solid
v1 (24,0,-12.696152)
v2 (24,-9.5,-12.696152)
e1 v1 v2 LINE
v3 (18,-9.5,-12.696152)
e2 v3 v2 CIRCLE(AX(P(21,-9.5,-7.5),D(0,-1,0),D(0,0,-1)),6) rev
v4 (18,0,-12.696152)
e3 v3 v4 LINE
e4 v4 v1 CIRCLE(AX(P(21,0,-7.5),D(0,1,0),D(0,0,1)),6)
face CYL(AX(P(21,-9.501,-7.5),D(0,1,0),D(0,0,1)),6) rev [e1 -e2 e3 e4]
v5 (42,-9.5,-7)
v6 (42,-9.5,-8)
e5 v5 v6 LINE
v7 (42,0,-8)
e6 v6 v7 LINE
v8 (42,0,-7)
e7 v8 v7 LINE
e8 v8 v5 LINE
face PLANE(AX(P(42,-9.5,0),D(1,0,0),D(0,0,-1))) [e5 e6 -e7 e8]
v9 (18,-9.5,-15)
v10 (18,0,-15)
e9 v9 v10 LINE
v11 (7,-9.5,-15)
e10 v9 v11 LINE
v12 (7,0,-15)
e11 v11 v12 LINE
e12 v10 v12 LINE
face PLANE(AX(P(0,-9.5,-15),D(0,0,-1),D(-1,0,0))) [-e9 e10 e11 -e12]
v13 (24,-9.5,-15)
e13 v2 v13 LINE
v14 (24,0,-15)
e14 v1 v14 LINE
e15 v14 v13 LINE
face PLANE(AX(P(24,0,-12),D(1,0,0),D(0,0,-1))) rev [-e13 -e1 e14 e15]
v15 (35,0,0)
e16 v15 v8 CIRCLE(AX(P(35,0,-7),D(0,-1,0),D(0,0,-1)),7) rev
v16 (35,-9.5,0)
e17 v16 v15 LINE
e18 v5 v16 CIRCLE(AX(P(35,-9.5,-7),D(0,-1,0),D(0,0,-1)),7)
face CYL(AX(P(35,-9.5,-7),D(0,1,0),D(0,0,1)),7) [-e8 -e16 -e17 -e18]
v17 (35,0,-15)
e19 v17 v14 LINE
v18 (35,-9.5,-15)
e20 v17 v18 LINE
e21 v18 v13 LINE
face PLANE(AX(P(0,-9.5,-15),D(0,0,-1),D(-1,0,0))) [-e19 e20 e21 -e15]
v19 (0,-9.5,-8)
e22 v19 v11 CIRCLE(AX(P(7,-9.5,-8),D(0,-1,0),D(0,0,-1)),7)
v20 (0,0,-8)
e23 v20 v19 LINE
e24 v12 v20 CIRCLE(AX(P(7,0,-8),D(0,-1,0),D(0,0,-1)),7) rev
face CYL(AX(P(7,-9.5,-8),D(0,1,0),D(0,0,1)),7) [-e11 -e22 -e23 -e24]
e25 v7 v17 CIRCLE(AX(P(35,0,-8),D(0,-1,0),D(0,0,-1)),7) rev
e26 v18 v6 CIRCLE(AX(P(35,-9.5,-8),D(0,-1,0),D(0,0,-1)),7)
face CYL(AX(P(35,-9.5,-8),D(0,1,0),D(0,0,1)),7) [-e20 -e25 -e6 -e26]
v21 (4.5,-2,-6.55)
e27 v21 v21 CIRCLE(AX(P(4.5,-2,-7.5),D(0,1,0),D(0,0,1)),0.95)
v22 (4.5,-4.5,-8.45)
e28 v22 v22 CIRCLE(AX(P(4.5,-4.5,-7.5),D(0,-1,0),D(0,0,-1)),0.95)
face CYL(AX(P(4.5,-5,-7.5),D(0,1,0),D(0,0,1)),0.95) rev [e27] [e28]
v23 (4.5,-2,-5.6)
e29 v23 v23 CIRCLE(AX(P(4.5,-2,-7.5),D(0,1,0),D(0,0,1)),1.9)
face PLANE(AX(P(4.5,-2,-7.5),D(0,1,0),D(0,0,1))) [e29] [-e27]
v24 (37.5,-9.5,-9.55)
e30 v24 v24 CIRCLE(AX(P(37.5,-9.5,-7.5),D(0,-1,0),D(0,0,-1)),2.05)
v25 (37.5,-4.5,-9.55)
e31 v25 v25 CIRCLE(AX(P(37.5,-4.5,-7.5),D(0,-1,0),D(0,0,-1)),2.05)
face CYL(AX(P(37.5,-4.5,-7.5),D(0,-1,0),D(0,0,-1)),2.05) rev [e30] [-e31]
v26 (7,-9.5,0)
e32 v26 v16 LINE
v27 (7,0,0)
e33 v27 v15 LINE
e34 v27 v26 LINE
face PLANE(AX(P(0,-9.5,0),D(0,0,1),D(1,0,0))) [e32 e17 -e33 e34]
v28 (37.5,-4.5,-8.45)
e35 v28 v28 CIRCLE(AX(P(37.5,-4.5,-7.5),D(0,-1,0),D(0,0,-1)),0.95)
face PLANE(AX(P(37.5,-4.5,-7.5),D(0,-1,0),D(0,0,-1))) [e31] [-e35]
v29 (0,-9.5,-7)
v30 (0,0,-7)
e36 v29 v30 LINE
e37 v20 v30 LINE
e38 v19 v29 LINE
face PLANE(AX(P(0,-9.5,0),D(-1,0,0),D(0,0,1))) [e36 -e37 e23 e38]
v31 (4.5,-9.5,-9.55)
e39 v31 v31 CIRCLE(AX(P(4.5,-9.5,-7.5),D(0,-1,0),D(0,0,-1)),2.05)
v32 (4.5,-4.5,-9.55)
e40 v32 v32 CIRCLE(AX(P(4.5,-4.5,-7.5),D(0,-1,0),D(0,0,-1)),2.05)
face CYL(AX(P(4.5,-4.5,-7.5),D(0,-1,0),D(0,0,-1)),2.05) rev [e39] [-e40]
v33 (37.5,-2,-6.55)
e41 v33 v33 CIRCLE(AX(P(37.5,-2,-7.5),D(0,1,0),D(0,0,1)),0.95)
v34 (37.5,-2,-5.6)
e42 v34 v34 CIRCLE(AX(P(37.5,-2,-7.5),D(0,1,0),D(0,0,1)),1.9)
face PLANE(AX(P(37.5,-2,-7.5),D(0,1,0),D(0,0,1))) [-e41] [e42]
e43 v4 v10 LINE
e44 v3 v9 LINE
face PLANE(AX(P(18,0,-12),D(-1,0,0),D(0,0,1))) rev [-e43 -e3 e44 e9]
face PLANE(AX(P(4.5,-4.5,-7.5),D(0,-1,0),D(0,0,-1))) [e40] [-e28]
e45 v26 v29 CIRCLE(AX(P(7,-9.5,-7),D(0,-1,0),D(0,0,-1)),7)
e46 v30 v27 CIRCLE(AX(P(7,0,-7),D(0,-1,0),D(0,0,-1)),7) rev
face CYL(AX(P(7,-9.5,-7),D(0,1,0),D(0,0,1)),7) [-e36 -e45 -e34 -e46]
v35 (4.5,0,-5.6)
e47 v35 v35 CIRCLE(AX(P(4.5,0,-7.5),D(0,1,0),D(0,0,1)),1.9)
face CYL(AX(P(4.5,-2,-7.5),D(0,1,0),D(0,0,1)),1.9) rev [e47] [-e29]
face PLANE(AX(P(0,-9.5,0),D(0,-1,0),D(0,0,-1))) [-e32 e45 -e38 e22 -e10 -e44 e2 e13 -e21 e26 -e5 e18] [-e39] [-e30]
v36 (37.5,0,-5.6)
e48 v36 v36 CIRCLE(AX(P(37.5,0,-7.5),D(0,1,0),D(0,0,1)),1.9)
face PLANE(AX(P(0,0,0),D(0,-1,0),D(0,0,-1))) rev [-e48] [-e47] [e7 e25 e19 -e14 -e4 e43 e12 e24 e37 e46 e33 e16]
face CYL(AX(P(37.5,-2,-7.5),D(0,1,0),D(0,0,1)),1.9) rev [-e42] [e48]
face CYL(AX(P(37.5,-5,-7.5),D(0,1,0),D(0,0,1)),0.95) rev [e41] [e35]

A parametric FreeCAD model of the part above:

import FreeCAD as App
import Part
import Sketcher
from FreeCAD import Vector
Q = App.Units.Quantity


def edges_at(feature, points):
    """Names of the edges that pass closest to the given points."""
    edges = feature.Shape.Edges
    near = lambda p: min(range(len(edges)), key=lambda i: edges[i].distToShape(Part.Vertex(*p))[0])
    return sorted({f"Edge{near(p) + 1}" for p in points})

doc = App.newDocument("Part")
body = doc.addObject("PartDesign::Body", "Body")

sketch1 = doc.addObject("Sketcher::SketchObject", "Sketch")
body.addObject(sketch1)
sketch1.AttachmentSupport = (doc.XZ_Plane, [""])
sketch1.MapMode = "FlatFace"
sketch1.addGeometry([
    Part.LineSegment(Vector(0, -15, 0), Vector(0, 0, 0)),
    Part.LineSegment(Vector(0, 0, 0), Vector(42, 0, 0)),
    Part.LineSegment(Vector(42, 0, 0), Vector(42, -15, 0)),
    Part.LineSegment(Vector(42, -15, 0), Vector(0, -15, 0)),
], False)
sketch1.addConstraint([
    Sketcher.Constraint("Coincident", 0, 2, 1, 1),
    Sketcher.Constraint("Coincident", 1, 2, 2, 1),
    Sketcher.Constraint("Coincident", 2, 2, 3, 1),
    Sketcher.Constraint("Coincident", 3, 2, 0, 1),
    Sketcher.Constraint("Vertical", 0),
    Sketcher.Constraint("Horizontal", 1),
    Sketcher.Constraint("Vertical", 2),
    Sketcher.Constraint("Horizontal", 3),
    Sketcher.Constraint("Coincident", 0, 2, -1, 1),
    Sketcher.Constraint("DistanceX", 1, 1, 1, 2, Q("42 mm")),
    Sketcher.Constraint("DistanceY", 0, 1, 0, 2, Q("15 mm")),
])
pad1 = doc.addObject("PartDesign::Pad", "Pad")
body.addObject(pad1)
pad1.Profile = sketch1
pad1.Length = 9.5

sketch2 = doc.addObject("Sketcher::SketchObject", "Sketch001")
body.addObject(sketch2)
sketch2.AttachmentSupport = (doc.XZ_Plane, [""])
sketch2.MapMode = "FlatFace"
sketch2.addGeometry(Part.Circle(Vector(21, -7.5, 0), Vector(0, 0, 1), 6), False)
sketch2.addConstraint([
    Sketcher.Constraint("Diameter", 0, Q("12 mm")),
    Sketcher.Constraint("DistanceX", -1, 1, 0, 3, Q("21 mm")),
    Sketcher.Constraint("DistanceY", 0, 3, -1, 1, Q("7.5 mm")),
])
pocket1 = doc.addObject("PartDesign::Pocket", "Pocket")
body.addObject(pocket1)
pocket1.Profile = sketch2
pocket1.Type = "UpToFirst"
pocket1.Reversed = True

sketch3 = doc.addObject("Sketcher::SketchObject", "Sketch002")
body.addObject(sketch3)
sketch3.AttachmentSupport = (doc.XZ_Plane, [""])
sketch3.MapMode = "FlatFace"
sketch3.addGeometry([
    Part.Circle(Vector(4.5, -7.5, 0), Vector(0, 0, 1), 1.9),
    Part.Circle(Vector(37.5, -7.5, 0), Vector(0, 0, 1), 1.9),
], False)
sketch3.addConstraint([
    Sketcher.Constraint("Equal", 0, 1),
    Sketcher.Constraint("Horizontal", 0, 3, 1, 3),
    Sketcher.Constraint("Diameter", 0, Q("3.8 mm")),
    Sketcher.Constraint("DistanceX", 0, 3, 1, 3, Q("33 mm")),
    Sketcher.Constraint("DistanceX", -1, 1, 0, 3, Q("4.5 mm")),
    Sketcher.Constraint("DistanceY", 0, 3, -1, 1, Q("7.5 mm")),
])
pocket2 = doc.addObject("PartDesign::Pocket", "Pocket001")
body.addObject(pocket2)
pocket2.Profile = sketch3
pocket2.Length = 2
pocket2.Reversed = True

sketch4 = doc.addObject("Sketcher::SketchObject", "Sketch003")
body.addObject(sketch4)
sketch4.AttachmentSupport = (doc.XZ_Plane, [""])
sketch4.MapMode = "FlatFace"
sketch4.AttachmentOffset = App.Placement(Vector(0, 0, 9.5), App.Rotation())
sketch4.addGeometry([
    Part.Circle(Vector(37.5, -7.5, 0), Vector(0, 0, 1), 2.05),
    Part.Circle(Vector(4.5, -7.5, 0), Vector(0, 0, 1), 2.05),
], False)
sketch4.addConstraint([
    Sketcher.Constraint("Equal", 0, 1),
    Sketcher.Constraint("Horizontal", 0, 3, 1, 3),
    Sketcher.Constraint("Diameter", 0, Q("4.1 mm")),
    Sketcher.Constraint("DistanceX", 1, 3, 0, 3, Q("33 mm")),
    Sketcher.Constraint("DistanceX", -1, 1, 0, 3, Q("37.5 mm")),
    Sketcher.Constraint("DistanceY", 0, 3, -1, 1, Q("7.5 mm")),
])
pocket3 = doc.addObject("PartDesign::Pocket", "Pocket002")
body.addObject(pocket3)
pocket3.Profile = sketch4
pocket3.Length = 5

sketch5 = doc.addObject("Sketcher::SketchObject", "Sketch004")
body.addObject(sketch5)
sketch5.AttachmentSupport = (doc.XZ_Plane, [""])
sketch5.MapMode = "FlatFace"
sketch5.AttachmentOffset = App.Placement(Vector(0, 0, 2), App.Rotation())
sketch5.addGeometry([
    Part.Circle(Vector(4.5, -7.5, 0), Vector(0, 0, 1), 0.95),
    Part.Circle(Vector(37.5, -7.5, 0), Vector(0, 0, 1), 0.95),
], False)
sketch5.addConstraint([
    Sketcher.Constraint("Equal", 0, 1),
    Sketcher.Constraint("Horizontal", 0, 3, 1, 3),
    Sketcher.Constraint("Diameter", 0, Q("1.9 mm")),
    Sketcher.Constraint("DistanceX", 0, 3, 1, 3, Q("33 mm")),
    Sketcher.Constraint("DistanceX", -1, 1, 0, 3, Q("4.5 mm")),
    Sketcher.Constraint("DistanceY", 0, 3, -1, 1, Q("7.5 mm")),
])
pocket4 = doc.addObject("PartDesign::Pocket", "Pocket003")
body.addObject(pocket4)
pocket4.Profile = sketch5
pocket4.Length = 3
pocket4.Reversed = True
doc.recompute()

fillet = doc.addObject("PartDesign::Fillet", "Fillet")
body.addObject(fillet)
fillet.Base = (pocket4, edges_at(pocket4, [
    (0, -4.75, -15),
    (42, -4.75, -15),
    (42, -4.75, 0),
    (0, -4.75, 0),
]))
fillet.Radius = 7

sketch6 = doc.addObject("Sketcher::SketchObject", "Sketch005")
body.addObject(sketch6)
sketch6.AttachmentSupport = (doc.XY_Plane, [""])
sketch6.MapMode = "FlatFace"
sketch6.AttachmentOffset = App.Placement(Vector(0, 0, -15), App.Rotation())
sketch6.addGeometry([
    Part.LineSegment(Vector(24, 0, 0), Vector(24, -9.5, 0)),
    Part.LineSegment(Vector(24, -9.5, 0), Vector(18, -9.5, 0)),
    Part.LineSegment(Vector(18, -9.5, 0), Vector(18, 0, 0)),
    Part.LineSegment(Vector(18, 0, 0), Vector(24, 0, 0)),
], False)
sketch6.addConstraint([
    Sketcher.Constraint("Coincident", 0, 2, 1, 1),
    Sketcher.Constraint("Coincident", 1, 2, 2, 1),
    Sketcher.Constraint("Coincident", 2, 2, 3, 1),
    Sketcher.Constraint("Coincident", 3, 2, 0, 1),
    Sketcher.Constraint("Vertical", 0),
    Sketcher.Constraint("Horizontal", 1),
    Sketcher.Constraint("Vertical", 2),
    Sketcher.Constraint("Horizontal", 3),
    Sketcher.Constraint("PointOnObject", 2, 2, -1),
    Sketcher.Constraint("DistanceX", 1, 2, 1, 1, Q("6 mm")),
    Sketcher.Constraint("DistanceY", 0, 2, 0, 1, Q("9.5 mm")),
    Sketcher.Constraint("DistanceX", -1, 1, 0, 2, Q("24 mm")),
])
pocket5 = doc.addObject("PartDesign::Pocket", "Pocket004")
body.addObject(pocket5)
pocket5.Profile = sketch6
pocket5.Length = 3
pocket5.Reversed = True

doc.recompute()
